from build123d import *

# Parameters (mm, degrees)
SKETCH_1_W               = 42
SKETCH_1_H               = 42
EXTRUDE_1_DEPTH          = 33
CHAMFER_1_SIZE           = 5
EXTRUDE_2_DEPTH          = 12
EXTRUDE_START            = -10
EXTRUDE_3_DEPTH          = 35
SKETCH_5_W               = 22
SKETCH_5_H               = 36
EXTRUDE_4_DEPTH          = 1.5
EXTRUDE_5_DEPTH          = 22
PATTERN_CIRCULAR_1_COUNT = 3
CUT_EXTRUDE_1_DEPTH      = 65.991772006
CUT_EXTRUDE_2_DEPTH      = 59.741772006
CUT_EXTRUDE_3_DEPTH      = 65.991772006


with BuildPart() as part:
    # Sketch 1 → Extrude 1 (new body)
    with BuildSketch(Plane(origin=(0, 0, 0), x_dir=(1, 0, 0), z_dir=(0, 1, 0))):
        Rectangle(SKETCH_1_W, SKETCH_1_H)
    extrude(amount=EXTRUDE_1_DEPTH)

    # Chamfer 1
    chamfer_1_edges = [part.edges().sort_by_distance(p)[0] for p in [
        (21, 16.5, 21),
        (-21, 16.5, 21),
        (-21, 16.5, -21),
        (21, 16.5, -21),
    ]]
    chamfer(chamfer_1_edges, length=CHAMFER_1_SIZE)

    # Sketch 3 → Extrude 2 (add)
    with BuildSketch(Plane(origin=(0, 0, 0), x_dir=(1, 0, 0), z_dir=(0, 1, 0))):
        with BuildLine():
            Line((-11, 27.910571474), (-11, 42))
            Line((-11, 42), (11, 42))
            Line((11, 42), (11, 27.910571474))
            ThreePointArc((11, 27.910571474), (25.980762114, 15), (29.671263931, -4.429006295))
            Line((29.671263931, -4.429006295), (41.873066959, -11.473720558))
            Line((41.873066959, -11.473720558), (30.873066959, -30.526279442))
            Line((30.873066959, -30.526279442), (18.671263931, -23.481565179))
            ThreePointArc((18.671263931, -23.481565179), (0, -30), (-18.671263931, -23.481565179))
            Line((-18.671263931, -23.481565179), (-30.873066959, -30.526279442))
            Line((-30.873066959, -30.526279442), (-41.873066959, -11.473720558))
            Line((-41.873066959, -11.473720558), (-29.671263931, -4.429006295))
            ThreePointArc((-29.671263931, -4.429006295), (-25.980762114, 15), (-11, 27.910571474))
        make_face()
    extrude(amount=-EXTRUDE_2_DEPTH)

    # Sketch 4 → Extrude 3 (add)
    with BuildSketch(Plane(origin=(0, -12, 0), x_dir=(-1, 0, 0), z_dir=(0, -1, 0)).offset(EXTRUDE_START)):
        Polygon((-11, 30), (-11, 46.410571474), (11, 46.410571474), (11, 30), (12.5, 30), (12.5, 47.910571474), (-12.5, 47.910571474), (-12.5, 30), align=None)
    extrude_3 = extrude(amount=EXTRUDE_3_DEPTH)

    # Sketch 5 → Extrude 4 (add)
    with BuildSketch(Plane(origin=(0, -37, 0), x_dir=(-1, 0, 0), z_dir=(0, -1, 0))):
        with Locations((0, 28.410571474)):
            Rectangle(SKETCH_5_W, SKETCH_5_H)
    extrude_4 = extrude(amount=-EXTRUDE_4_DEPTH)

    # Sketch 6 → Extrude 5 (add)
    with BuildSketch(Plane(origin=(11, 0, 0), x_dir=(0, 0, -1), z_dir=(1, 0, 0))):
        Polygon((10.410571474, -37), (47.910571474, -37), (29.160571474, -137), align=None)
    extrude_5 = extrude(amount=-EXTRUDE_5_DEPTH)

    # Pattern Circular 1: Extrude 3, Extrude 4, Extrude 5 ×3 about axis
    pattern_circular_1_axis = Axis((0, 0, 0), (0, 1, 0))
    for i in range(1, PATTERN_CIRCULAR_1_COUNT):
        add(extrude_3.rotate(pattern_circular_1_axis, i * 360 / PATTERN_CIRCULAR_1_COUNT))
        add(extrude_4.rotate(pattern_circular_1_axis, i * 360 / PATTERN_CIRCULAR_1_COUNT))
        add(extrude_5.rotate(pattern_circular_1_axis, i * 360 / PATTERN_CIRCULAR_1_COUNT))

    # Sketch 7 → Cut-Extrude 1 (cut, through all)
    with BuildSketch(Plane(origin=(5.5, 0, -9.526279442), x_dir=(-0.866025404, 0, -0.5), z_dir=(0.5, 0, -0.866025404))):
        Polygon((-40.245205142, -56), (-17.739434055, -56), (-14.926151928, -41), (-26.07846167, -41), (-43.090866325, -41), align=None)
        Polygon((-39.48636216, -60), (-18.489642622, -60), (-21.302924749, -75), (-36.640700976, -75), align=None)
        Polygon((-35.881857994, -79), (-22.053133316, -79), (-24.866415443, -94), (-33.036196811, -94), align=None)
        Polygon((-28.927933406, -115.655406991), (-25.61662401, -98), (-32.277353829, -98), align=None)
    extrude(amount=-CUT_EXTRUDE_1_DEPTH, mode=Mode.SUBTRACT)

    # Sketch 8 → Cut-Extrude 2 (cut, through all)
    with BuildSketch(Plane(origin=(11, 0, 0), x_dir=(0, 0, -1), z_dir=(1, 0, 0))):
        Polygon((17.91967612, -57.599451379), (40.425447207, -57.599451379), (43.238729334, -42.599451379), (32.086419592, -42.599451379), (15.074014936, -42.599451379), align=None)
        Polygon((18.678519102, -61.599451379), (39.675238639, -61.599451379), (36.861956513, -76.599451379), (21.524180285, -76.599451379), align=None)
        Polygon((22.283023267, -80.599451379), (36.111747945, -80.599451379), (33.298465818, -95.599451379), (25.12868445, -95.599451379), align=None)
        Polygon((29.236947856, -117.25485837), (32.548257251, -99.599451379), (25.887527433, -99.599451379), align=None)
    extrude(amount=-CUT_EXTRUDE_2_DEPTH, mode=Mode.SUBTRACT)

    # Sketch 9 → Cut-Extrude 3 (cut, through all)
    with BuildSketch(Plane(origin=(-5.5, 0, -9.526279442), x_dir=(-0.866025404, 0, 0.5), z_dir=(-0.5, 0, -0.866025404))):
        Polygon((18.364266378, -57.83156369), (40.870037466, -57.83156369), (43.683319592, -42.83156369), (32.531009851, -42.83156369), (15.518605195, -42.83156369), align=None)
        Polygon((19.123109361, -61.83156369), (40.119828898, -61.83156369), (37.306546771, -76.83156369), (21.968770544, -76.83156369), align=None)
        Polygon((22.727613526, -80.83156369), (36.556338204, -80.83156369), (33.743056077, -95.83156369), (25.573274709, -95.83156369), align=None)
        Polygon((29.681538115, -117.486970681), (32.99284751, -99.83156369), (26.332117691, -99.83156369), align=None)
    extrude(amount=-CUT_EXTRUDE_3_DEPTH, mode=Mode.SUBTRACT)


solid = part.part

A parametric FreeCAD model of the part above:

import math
import FreeCAD as App
import Part
import Sketcher
from FreeCAD import Vector
Q = App.Units.Quantity


def edges_at(feature, points):
    """Names of the edges that pass closest to the given points."""
    edges = feature.Shape.Edges
    near = lambda p: min(range(len(edges)), key=lambda i: edges[i].distToShape(Part.Vertex(*p))[0])
    return sorted({f"Edge{near(p) + 1}" for p in points})

doc = App.newDocument("Part")
params = doc.addObject("Spreadsheet::Sheet", "Params")
for row, (alias, value) in enumerate([
    ("sketch1_width", "42 mm"),
    ("pad1_length", "33 mm"),
    ("chamfer_size", "5 mm"),
    ("sketch2_radius", "30 mm"),
    ("sketch2_width", "22 mm"),
    ("sketch2_length", "22 mm"),
    ("pad2_length", "12 mm"),
    ("sketch3_width", "22 mm"),
    ("sketch3_width2", "25 mm"),
    ("pad3_length", "35 mm"),
    ("sketch4_width", "22 mm"),
    ("sketch4_height", "36 mm"),
    ("pad4_length", "1.5 mm"),
    ("sketch5_height", "37.5 mm"),
    ("pad5_length", "22 mm"),
], start=1):
    params.set(f"A{row}", alias)
    params.set(f"B{row}", "=" + value)
    params.setAlias(f"B{row}", alias)

body = doc.addObject("PartDesign::Body", "Body")

# Sketch on XZ plane
sketch1 = doc.addObject("Sketcher::SketchObject", "Sketch")
body.addObject(sketch1)
sketch1.AttachmentSupport = (doc.XZ_Plane, [""])
sketch1.MapMode = "FlatFace"
sketch1.addGeometry([
    Part.LineSegment(Vector(-21, -21, 0), Vector(-21, 21, 0)),
    Part.LineSegment(Vector(-21, 21, 0), Vector(21, 21, 0)),
    Part.LineSegment(Vector(21, 21, 0), Vector(21, -21, 0)),
    Part.LineSegment(Vector(21, -21, 0), Vector(-21, -21, 0)),
], False)
sketch1.addConstraint([
    Sketcher.Constraint("Coincident", 0, 2, 1, 1),
    Sketcher.Constraint("Coincident", 1, 2, 2, 1),
    Sketcher.Constraint("Coincident", 2, 2, 3, 1),
    Sketcher.Constraint("Coincident", 3, 2, 0, 1),
    Sketcher.Constraint("Vertical", 0),
    Sketcher.Constraint("Horizontal", 1),
    Sketcher.Constraint("Vertical", 2),
    Sketcher.Constraint("Horizontal", 3),
    Sketcher.Constraint("Symmetric", 0, 2, 2, 2, -1, 1),
    Sketcher.Constraint("Equal", 3, 0),
    Sketcher.Constraint("DistanceX", 1, 1, 1, 2, 42.0),
])
sketch1.setExpression("Constraints[10]", "Params.sketch1_width")
pad1 = doc.addObject("PartDesign::Pad", "Pad")
body.addObject(pad1)
pad1.Profile = sketch1
pad1.setExpression("Length", "Params.pad1_length")
pad1.Reversed = True
doc.recompute()

chamfer = doc.addObject("PartDesign::Chamfer", "Chamfer")
body.addObject(chamfer)
chamfer.Base = (pad1, edges_at(pad1, [
    (21, 16.5, 21),
    (-21, 16.5, 21),
    (-21, 16.5, -21),
    (21, 16.5, -21),
]))
chamfer.setExpression("Size", "Params.chamfer_size")

# Sketch on XZ plane
sketch2 = doc.addObject("Sketcher::SketchObject", "Sketch001")
body.addObject(sketch2)
sketch2.AttachmentSupport = (doc.XZ_Plane, [""])
sketch2.MapMode = "FlatFace"
sketch2.addGeometry([
    Part.LineSegment(Vector(-11, -42, 0), Vector(-11, -28, 0)),  # 0
    Part.ArcOfCircle(Part.Circle(Vector(0, 0, 0), Vector(0, 0, 1), 30), math.radians(172), math.radians(248)),  # 1
    Part.LineSegment(Vector(-30, 4, 0), Vector(-42, 11, 0)),  # 2
    Part.LineSegment(Vector(-42, 11, 0), Vector(-31, 31, 0)),  # 3
    Part.LineSegment(Vector(-31, 31, 0), Vector(-19, 23, 0)),  # 4
    Part.ArcOfCircle(Part.Circle(Vector(0, 0, 0), Vector(0, 0, 1), 30), math.radians(52), math.radians(128)),  # 5
    Part.LineSegment(Vector(19, 23, 0), Vector(31, 31, 0)),  # 6
    Part.LineSegment(Vector(31, 31, 0), Vector(42, 11, 0)),  # 7
    Part.LineSegment(Vector(42, 11, 0), Vector(30, 4, 0)),  # 8
    Part.ArcOfCircle(Part.Circle(Vector(0, 0, 0), Vector(0, 0, 1), 30), math.radians(-68), math.radians(8)),  # 9
    Part.LineSegment(Vector(11, -28, 0), Vector(11, -42, 0)),  # 10
    Part.LineSegment(Vector(11, -42, 0), Vector(-11, -42, 0)),  # 11
], False)
sketch2.addConstraint([
    Sketcher.Constraint("Coincident", 0, 2, 1, 2),
    Sketcher.Constraint("Coincident", 1, 1, 2, 1),
    Sketcher.Constraint("Coincident", 2, 2, 3, 1),
    Sketcher.Constraint("Coincident", 3, 2, 4, 1),
    Sketcher.Constraint("Coincident", 4, 2, 5, 2),
    Sketcher.Constraint("Coincident", 5, 1, 6, 1),
    Sketcher.Constraint("Coincident", 6, 2, 7, 1),
    Sketcher.Constraint("Coincident", 7, 2, 8, 1),
    Sketcher.Constraint("Coincident", 8, 2, 9, 2),
    Sketcher.Constraint("Coincident", 9, 1, 10, 1),
    Sketcher.Constraint("Coincident", 10, 2, 11, 1),
    Sketcher.Constraint("Coincident", 11, 2, 0, 1),
    Sketcher.Constraint("Vertical", 0),
    Sketcher.Constraint("Vertical", 10),
    Sketcher.Constraint("Horizontal", 11),
    Sketcher.Constraint("Coincident", 1, 3, -1, 1),
    Sketcher.Constraint("Coincident", 5, 3, -1, 1),
    Sketcher.Constraint("Coincident", 9, 3, -1, 1),
    Sketcher.Constraint("Equal", 1, 5),
    Sketcher.Constraint("Equal", 5, 9),
    Sketcher.Constraint("Symmetric", 3, 2, 6, 2, -2),
    Sketcher.Constraint("Symmetric", 2, 2, 7, 2, -2),
    Sketcher.Constraint("Perpendicular", 2, 3),
    Sketcher.Constraint("Perpendicular", 3, 4),
    Sketcher.Constraint("Perpendicular", 6, 7),
    Sketcher.Constraint("Perpendicular", 7, 8),
    Sketcher.Constraint("Horizontal", 0, 2, 9, 1),
    Sketcher.Constraint("Equal", 2, 4),
    Sketcher.Constraint("Radius", 1, 30.0),
    Sketcher.Constraint("DistanceX", 11, 2, 11, 1, 22.0),
    Sketcher.Constraint("Angle", 2, Q("150 deg")),
    Sketcher.Constraint("Distance", 3, 22.0),
    Sketcher.Constraint("DistanceY", 10, 2, -1, 1, 42.0),
    Sketcher.Constraint("Distance", 2, 14.089429),
])
sketch2.setExpression("Constraints[28]", "Params.sketch2_radius")
sketch2.setExpression("Constraints[29]", "Params.sketch2_width")
sketch2.setExpression("Constraints[31]", "Params.sketch2_length")
pad2 = doc.addObject("PartDesign::Pad", "Pad001")
body.addObject(pad2)
pad2.Profile = sketch2
pad2.setExpression("Length", "Params.pad2_length")

# Sketch on XZ plane
sketch3 = doc.addObject("Sketcher::SketchObject", "Sketch002")
body.addObject(sketch3)
sketch3.AttachmentSupport = (doc.XZ_Plane, [""])
sketch3.MapMode = "FlatFace"
sketch3.AttachmentOffset = App.Placement(Vector(0, 0, 2), App.Rotation())
sketch3.addGeometry([
    Part.LineSegment(Vector(11, -30, 0), Vector(11, -46.4, 0)),  # 0
    Part.LineSegment(Vector(11, -46.4, 0), Vector(-11, -46.4, 0)),  # 1
    Part.LineSegment(Vector(-11, -46.4, 0), Vector(-11, -30, 0)),  # 2
    Part.LineSegment(Vector(-11, -30, 0), Vector(-12.5, -30, 0)),  # 3
    Part.LineSegment(Vector(-12.5, -30, 0), Vector(-12.5, -47.9, 0)),  # 4
    Part.LineSegment(Vector(-12.5, -47.9, 0), Vector(12.5, -47.9, 0)),  # 5
    Part.LineSegment(Vector(12.5, -47.9, 0), Vector(12.5, -30, 0)),  # 6
    Part.LineSegment(Vector(12.5, -30, 0), Vector(11, -30, 0)),  # 7
], False)
sketch3.addConstraint([
    Sketcher.Constraint("Coincident", 0, 2, 1, 1),
    Sketcher.Constraint("Coincident", 1, 2, 2, 1),
    Sketcher.Constraint("Coincident", 2, 2, 3, 1),
    Sketcher.Constraint("Coincident", 3, 2, 4, 1),
    Sketcher.Constraint("Coincident", 4, 2, 5, 1),
    Sketcher.Constraint("Coincident", 5, 2, 6, 1),
    Sketcher.Constraint("Coincident", 6, 2, 7, 1),
    Sketcher.Constraint("Coincident", 7, 2, 0, 1),
    Sketcher.Constraint("Vertical", 0),
    Sketcher.Constraint("Horizontal", 1),
    Sketcher.Constraint("Vertical", 2),
    Sketcher.Constraint("Horizontal", 3),
    Sketcher.Constraint("Vertical", 4),
    Sketcher.Constraint("Horizontal", 5),
    Sketcher.Constraint("Vertical", 6),
    Sketcher.Constraint("Horizontal", 7),
    Sketcher.Constraint("Symmetric", 3, 2, 6, 2, -2),
    Sketcher.Constraint("Equal", 3, 7),
    Sketcher.Constraint("DistanceX", 1, 2, 1, 1, 22.0),
    Sketcher.Constraint("DistanceX", 5, 1, 5, 2, 25.0),
    Sketcher.Constraint("DistanceY", 2, 2, -1, 1, 30.0),
    Sketcher.Constraint("DistanceY", 4, 2, 1, 2, 1.5),
    Sketcher.Constraint("DistanceY", 0, 2, 0, 1, 16.410571),
])
sketch3.setExpression("Constraints[18]", "Params.sketch3_width")
sketch3.setExpression("Constraints[19]", "Params.sketch3_width2")
pad3 = doc.addObject("PartDesign::Pad", "Pad002")
body.addObject(pad3)
pad3.Profile = sketch3
pad3.setExpression("Length", "Params.pad3_length")

# Sketch on XZ plane
sketch4 = doc.addObject("Sketcher::SketchObject", "Sketch003")
body.addObject(sketch4)
sketch4.AttachmentSupport = (doc.XZ_Plane, [""])
sketch4.MapMode = "FlatFace"
sketch4.AttachmentOffset = App.Placement(Vector(0, 0, 37), App.Rotation())
sketch4.addGeometry([
    Part.LineSegment(Vector(11, -46, 0), Vector(11, -10, 0)),
    Part.LineSegment(Vector(11, -10, 0), Vector(-11, -10, 0)),
    Part.LineSegment(Vector(-11, -10, 0), Vector(-11, -46, 0)),
    Part.LineSegment(Vector(-11, -46, 0), Vector(11, -46, 0)),
], False)
sketch4.addConstraint([
    Sketcher.Constraint("Coincident", 0, 2, 1, 1),
    Sketcher.Constraint("Coincident", 1, 2, 2, 1),
    Sketcher.Constraint("Coincident", 2, 2, 3, 1),
    Sketcher.Constraint("Coincident", 3, 2, 0, 1),
    Sketcher.Constraint("Vertical", 0),
    Sketcher.Constraint("Horizontal", 1),
    Sketcher.Constraint("Vertical", 2),
    Sketcher.Constraint("Horizontal", 3),
    Sketcher.Constraint("DistanceX", 1, 2, 1, 1, 22.0),
    Sketcher.Constraint("DistanceY", 0, 1, 0, 2, 36.0),
    Sketcher.Constraint("DistanceX", -1, 1, 0, 2, 11.0),
    Sketcher.Constraint("DistanceY", 0, 2, -1, 1, 10.410571),
])
sketch4.setExpression("Constraints[8]", "Params.sketch4_width")
sketch4.setExpression("Constraints[9]", "Params.sketch4_height")
pad4 = doc.addObject("PartDesign::Pad", "Pad003")
body.addObject(pad4)
pad4.Profile = sketch4
pad4.setExpression("Length", "Params.pad4_length")
pad4.Reversed = True

# Sketch on YZ plane
sketch5 = doc.addObject("Sketcher::SketchObject", "Sketch004")
body.addObject(sketch5)
sketch5.AttachmentSupport = (doc.YZ_Plane, [""])
sketch5.MapMode = "FlatFace"
sketch5.AttachmentOffset = App.Placement(Vector(0, 0, 11), App.Rotation())
sketch5.addGeometry([
    Part.LineSegment(Vector(-37, -48, 0), Vector(-37, -10, 0)),
    Part.LineSegment(Vector(-37, -10, 0), Vector(-137, -29, 0)),
    Part.LineSegment(Vector(-137, -29, 0), Vector(-37, -48, 0)),
], False)
sketch5.addConstraint([
    Sketcher.Constraint("Coincident", 0, 2, 1, 1),
    Sketcher.Constraint("Coincident", 1, 2, 2, 1),
    Sketcher.Constraint("Coincident", 2, 2, 0, 1),
    Sketcher.Constraint("Vertical", 0),
    Sketcher.Constraint("Equal", 1, 2),
    Sketcher.Constraint("DistanceY", 0, 1, 0, 2, 37.5),
    Sketcher.Constraint("DistanceX", 0, 2, -1, 1, 37.0),
    Sketcher.Constraint("DistanceX", 1, 2, -1, 1, 137.0),
    Sketcher.Constraint("DistanceY", 0, 2, -1, 1, 10.410571),
])
sketch5.setExpression("Constraints[5]", "Params.sketch5_height")
pad5 = doc.addObject("PartDesign::Pad", "Pad004")
body.addObject(pad5)
pad5.Profile = sketch5
pad5.setExpression("Length", "Params.pad5_length")
pad5.Reversed = True
doc.recompute()

polarpattern = doc.addObject("PartDesign::PolarPattern", "PolarPattern")
body.addObject(polarpattern)
polarpattern.Originals = [pad3, pad4, pad5]
polarpattern.Axis = (doc.Y_Axis, [""])
polarpattern.Angle = 360
polarpattern.Occurrences = 3
body.Tip = polarpattern

# Sketch on an angled plane
sketch6 = doc.addObject("Sketcher::SketchObject", "Sketch005")
body.addObject(sketch6)
sketch6.Placement = App.Placement(Vector(5.5, 0, -9.526279), App.Rotation(Vector(-0.866025404, 0, -0.5), Vector(0, 1, 0), Vector(0.5, 0, -0.866025404), "ZXY"))
sketch6.addGeometry([
    Part.LineSegment(Vector(-40, -56, 0), Vector(-18, -56, 0)),  # 0
    Part.LineSegment(Vector(-18, -56, 0), Vector(-15, -41, 0)),  # 1
    Part.LineSegment(Vector(-15, -41, 0), Vector(-43, -41, 0)),  # 2
    Part.LineSegment(Vector(-43, -41, 0), Vector(-40, -56, 0)),  # 3
    Part.LineSegment(Vector(-18, -60, 0), Vector(-39, -60, 0)),  # 4
    Part.LineSegment(Vector(-39, -60, 0), Vector(-37, -75, 0)),  # 5
    Part.LineSegment(Vector(-37, -75, 0), Vector(-21, -75, 0)),  # 6
    Part.LineSegment(Vector(-21, -75, 0), Vector(-18, -60, 0)),  # 7
    Part.LineSegment(Vector(-22, -79, 0), Vector(-36, -79, 0)),  # 8
    Part.LineSegment(Vector(-36, -79, 0), Vector(-33, -94, 0)),  # 9
    Part.LineSegment(Vector(-33, -94, 0), Vector(-25, -94, 0)),  # 10
    Part.LineSegment(Vector(-25, -94, 0), Vector(-22, -79, 0)),  # 11
    Part.LineSegment(Vector(-29, -116, 0), Vector(-26, -98, 0)),  # 12
    Part.LineSegment(Vector(-26, -98, 0), Vector(-32, -98, 0)),  # 13
    Part.LineSegment(Vector(-32, -98, 0), Vector(-29, -116, 0)),  # 14
], False)
sketch6.addConstraint([
    Sketcher.Constraint("Coincident", 0, 2, 1, 1),
    Sketcher.Constraint("Coincident", 1, 2, 2, 1),
    Sketcher.Constraint("Coincident", 2, 2, 3, 1),
    Sketcher.Constraint("Coincident", 3, 2, 0, 1),
    Sketcher.Constraint("Coincident", 4, 2, 5, 1),
    Sketcher.Constraint("Coincident", 5, 2, 6, 1),
    Sketcher.Constraint("Coincident", 6, 2, 7, 1),
    Sketcher.Constraint("Coincident", 7, 2, 4, 1),
    Sketcher.Constraint("Coincident", 8, 2, 9, 1),
    Sketcher.Constraint("Coincident", 9, 2, 10, 1),
    Sketcher.Constraint("Coincident", 10, 2, 11, 1),
    Sketcher.Constraint("Coincident", 11, 2, 8, 1),
    Sketcher.Constraint("Coincident", 12, 2, 13, 1),
    Sketcher.Constraint("Coincident", 13, 2, 14, 1),
    Sketcher.Constraint("Coincident", 14, 2, 12, 1),
    Sketcher.Constraint("Horizontal", 0),
    Sketcher.Constraint("Horizontal", 2),
    Sketcher.Constraint("Horizontal", 4),
    Sketcher.Constraint("Horizontal", 6),
    Sketcher.Constraint("Horizontal", 8),
    Sketcher.Constraint("Horizontal", 10),
    Sketcher.Constraint("Horizontal", 13),
    Sketcher.Constraint("Parallel", 3, 5),
    Sketcher.Constraint("Parallel", 1, 7),
    Sketcher.Constraint("Parallel", 5, 9),
    Sketcher.Constraint("Parallel", 7, 11),
    Sketcher.Constraint("Parallel", 11, 12),
    Sketcher.Constraint("Parallel", 9, 14),
    Sketcher.Constraint("Equal", 3, 5),
    Sketcher.Constraint("Equal", 5, 9),
    Sketcher.Constraint("DistanceY", 0, 2, -1, 1, 56.0),
    Sketcher.Constraint("DistanceY", 1, 2, -1, 1, 41.0),
    Sketcher.Constraint("DistanceY", 4, 2, -1, 1, 60.0),
    Sketcher.Constraint("DistanceY", 8, 2, -1, 1, 79.0),
    Sketcher.Constraint("DistanceY", 12, 2, -1, 1, 98.0),
    Sketcher.Constraint("DistanceX", 0, 1, 0, 2, 22.505771),
    Sketcher.Constraint("DistanceX", 4, 2, 4, 1, 20.99672),
    Sketcher.Constraint("DistanceX", 10, 1, 10, 2, 8.169781),
    Sketcher.Constraint("DistanceX", 13, 2, 13, 1, 6.66073),
    Sketcher.Constraint("DistanceX", 5, 2, -1, 1, 36.640701),
    Sketcher.Constraint("DistanceX", 12, 2, 6, 2, 4.313699),
    Sketcher.Constraint("DistanceX", 14, 2, 11, 2, 6.8748),
    Sketcher.Constraint("Distance", 1, 15.261538),
    Sketcher.Constraint("Distance", 3, 15.26754),
    Sketcher.Constraint("DistanceX", 1, 2, -1, 1, 14.926152),
])
pocket1 = doc.addObject("PartDesign::Pocket", "Pocket")
body.addObject(pocket1)
pocket1.Profile = sketch6
pocket1.Type = "ThroughAll"

# Sketch on YZ plane
sketch7 = doc.addObject("Sketcher::SketchObject", "Sketch006")
body.addObject(sketch7)
sketch7.AttachmentSupport = (doc.YZ_Plane, [""])
sketch7.MapMode = "FlatFace"
sketch7.AttachmentOffset = App.Placement(Vector(0, 0, 11), App.Rotation())
sketch7.addGeometry([
    Part.LineSegment(Vector(-58, -18, 0), Vector(-58, -40, 0)),  # 0
    Part.LineSegment(Vector(-58, -40, 0), Vector(-43, -43, 0)),  # 1
    Part.LineSegment(Vector(-43, -43, 0), Vector(-43, -15, 0)),  # 2
    Part.LineSegment(Vector(-43, -15, 0), Vector(-58, -18, 0)),  # 3
    Part.LineSegment(Vector(-62, -40, 0), Vector(-62, -19, 0)),  # 4
    Part.LineSegment(Vector(-62, -19, 0), Vector(-77, -22, 0)),  # 5
    Part.LineSegment(Vector(-77, -22, 0), Vector(-77, -37, 0)),  # 6
    Part.LineSegment(Vector(-77, -37, 0), Vector(-62, -40, 0)),  # 7
    Part.LineSegment(Vector(-81, -36, 0), Vector(-81, -22, 0)),  # 8
    Part.LineSegment(Vector(-81, -22, 0), Vector(-96, -25, 0)),  # 9
    Part.LineSegment(Vector(-96, -25, 0), Vector(-96, -33, 0)),  # 10
    Part.LineSegment(Vector(-96, -33, 0), Vector(-81, -36, 0)),  # 11
    Part.LineSegment(Vector(-117, -29, 0), Vector(-100, -33, 0)),  # 12
    Part.LineSegment(Vector(-100, -33, 0), Vector(-100, -26, 0)),  # 13
    Part.LineSegment(Vector(-100, -26, 0), Vector(-117, -29, 0)),  # 14
], False)
sketch7.addConstraint([
    Sketcher.Constraint("Coincident", 0, 2, 1, 1),
    Sketcher.Constraint("Coincident", 1, 2, 2, 1),
    Sketcher.Constraint("Coincident", 2, 2, 3, 1),
    Sketcher.Constraint("Coincident", 3, 2, 0, 1),
    Sketcher.Constraint("Coincident", 4, 2, 5, 1),
    Sketcher.Constraint("Coincident", 5, 2, 6, 1),
    Sketcher.Constraint("Coincident", 6, 2, 7, 1),
    Sketcher.Constraint("Coincident", 7, 2, 4, 1),
    Sketcher.Constraint("Coincident", 8, 2, 9, 1),
    Sketcher.Constraint("Coincident", 9, 2, 10, 1),
    Sketcher.Constraint("Coincident", 10, 2, 11, 1),
    Sketcher.Constraint("Coincident", 11, 2, 8, 1),
    Sketcher.Constraint("Coincident", 12, 2, 13, 1),
    Sketcher.Constraint("Coincident", 13, 2, 14, 1),
    Sketcher.Constraint("Coincident", 14, 2, 12, 1),
    Sketcher.Constraint("Vertical", 0),
    Sketcher.Constraint("Vertical", 2),
    Sketcher.Constraint("Vertical", 4),
    Sketcher.Constraint("Vertical", 6),
    Sketcher.Constraint("Vertical", 8),
    Sketcher.Constraint("Vertical", 10),
    Sketcher.Constraint("Vertical", 13),
    Sketcher.Constraint("Parallel", 3, 5),
    Sketcher.Constraint("Parallel", 1, 7),
    Sketcher.Constraint("Parallel", 5, 9),
    Sketcher.Constraint("Parallel", 7, 11),
    Sketcher.Constraint("Parallel", 11, 12),
    Sketcher.Constraint("Parallel", 9, 14),
    Sketcher.Constraint("Equal", 3, 5),
    Sketcher.Constraint("Equal", 5, 9),
    Sketcher.Constraint("DistanceX", 0, 2, 1, 2, 15.0),
    Sketcher.Constraint("DistanceX", 4, 2, 3, 2, 4.0),
    Sketcher.Constraint("DistanceX", 8, 2, 5, 2, 4.0),
    Sketcher.Constraint("DistanceX", 12, 2, 10, 2, 4.0),
    Sketcher.Constraint("DistanceY", 0, 2, 0, 1, 22.505771),
    Sketcher.Constraint("DistanceY", 4, 1, 4, 2, 20.99672),
    Sketcher.Constraint("DistanceY", 10, 2, 10, 1, 8.169781),
    Sketcher.Constraint("DistanceY", 13, 1, 13, 2, 6.66073),
    Sketcher.Constraint("DistanceY", 6, 2, 12, 2, 4.313699),
    Sketcher.Constraint("DistanceY", 11, 2, 14, 2, 6.8748),
    Sketcher.Constraint("Distance", 1, 15.261538),
    Sketcher.Constraint("Distance", 3, 15.26754),
    Sketcher.Constraint("DistanceX", 0, 2, -1, 1, 57.599451),
    Sketcher.Constraint("DistanceY", 1, 2, -1, 1, 43.238729),
    Sketcher.Constraint("DistanceY", 4, 2, -1, 1, 18.678519),
])
pocket2 = doc.addObject("PartDesign::Pocket", "Pocket001")
body.addObject(pocket2)
pocket2.Profile = sketch7
pocket2.Type = "ThroughAll"

# Sketch on an angled plane
sketch8 = doc.addObject("Sketcher::SketchObject", "Sketch007")
body.addObject(sketch8)
sketch8.Placement = App.Placement(Vector(-5.5, 0, -9.526279), App.Rotation(Vector(-0.866025404, 0, 0.5), Vector(0, 1, 0), Vector(-0.5, 0, -0.866025404), "ZXY"))
sketch8.addGeometry([
    Part.LineSegment(Vector(18, -58, 0), Vector(41, -58, 0)),  # 0
    Part.LineSegment(Vector(41, -58, 0), Vector(44, -43, 0)),  # 1
    Part.LineSegment(Vector(44, -43, 0), Vector(16, -43, 0)),  # 2
    Part.LineSegment(Vector(16, -43, 0), Vector(18, -58, 0)),  # 3
    Part.LineSegment(Vector(40, -62, 0), Vector(19, -62, 0)),  # 4
    Part.LineSegment(Vector(19, -62, 0), Vector(22, -77, 0)),  # 5
    Part.LineSegment(Vector(22, -77, 0), Vector(37, -77, 0)),  # 6
    Part.LineSegment(Vector(37, -77, 0), Vector(40, -62, 0)),  # 7
    Part.LineSegment(Vector(37, -81, 0), Vector(23, -81, 0)),  # 8
    Part.LineSegment(Vector(23, -81, 0), Vector(26, -96, 0)),  # 9
    Part.LineSegment(Vector(26, -96, 0), Vector(34, -96, 0)),  # 10
    Part.LineSegment(Vector(34, -96, 0), Vector(37, -81, 0)),  # 11
    Part.LineSegment(Vector(30, -117, 0), Vector(33, -100, 0)),  # 12
    Part.LineSegment(Vector(33, -100, 0), Vector(26, -100, 0)),  # 13
    Part.LineSegment(Vector(26, -100, 0), Vector(30, -117, 0)),  # 14
], False)
sketch8.addConstraint([
    Sketcher.Constraint("Coincident", 0, 2, 1, 1),
    Sketcher.Constraint("Coincident", 1, 2, 2, 1),
    Sketcher.Constraint("Coincident", 2, 2, 3, 1),
    Sketcher.Constraint("Coincident", 3, 2, 0, 1),
    Sketcher.Constraint("Coincident", 4, 2, 5, 1),
    Sketcher.Constraint("Coincident", 5, 2, 6, 1),
    Sketcher.Constraint("Coincident", 6, 2, 7, 1),
    Sketcher.Constraint("Coincident", 7, 2, 4, 1),
    Sketcher.Constraint("Coincident", 8, 2, 9, 1),
    Sketcher.Constraint("Coincident", 9, 2, 10, 1),
    Sketcher.Constraint("Coincident", 10, 2, 11, 1),
    Sketcher.Constraint("Coincident", 11, 2, 8, 1),
    Sketcher.Constraint("Coincident", 12, 2, 13, 1),
    Sketcher.Constraint("Coincident", 13, 2, 14, 1),
    Sketcher.Constraint("Coincident", 14, 2, 12, 1),
    Sketcher.Constraint("Horizontal", 0),
    Sketcher.Constraint("Horizontal", 2),
    Sketcher.Constraint("Horizontal", 4),
    Sketcher.Constraint("Horizontal", 6),
    Sketcher.Constraint("Horizontal", 8),
    Sketcher.Constraint("Horizontal", 10),
    Sketcher.Constraint("Horizontal", 13),
    Sketcher.Constraint("Parallel", 3, 5),
    Sketcher.Constraint("Parallel", 1, 7),
    Sketcher.Constraint("Parallel", 5, 9),
    Sketcher.Constraint("Parallel", 7, 11),
    Sketcher.Constraint("Parallel", 11, 12),
    Sketcher.Constraint("Parallel", 9, 14),
    Sketcher.Constraint("Equal", 3, 5),
    Sketcher.Constraint("Equal", 5, 9),
    Sketcher.Constraint("DistanceY", 0, 2, 1, 2, 15.0),
    Sketcher.Constraint("DistanceY", 4, 2, 3, 2, 4.0),
    Sketcher.Constraint("DistanceY", 8, 2, 5, 2, 4.0),
    Sketcher.Constraint("DistanceY", 12, 2, 10, 2, 4.0),
    Sketcher.Constraint("DistanceX", 0, 1, 0, 2, 22.505771),
    Sketcher.Constraint("DistanceX", 4, 2, 4, 1, 20.99672),
    Sketcher.Constraint("DistanceX", 10, 1, 10, 2, 8.169781),
    Sketcher.Constraint("DistanceX", 13, 2, 13, 1, 6.66073),
    Sketcher.Constraint("DistanceX", 12, 2, 6, 2, 4.313699),
    Sketcher.Constraint("DistanceX", 14, 2, 11, 2, 6.8748),
    Sketcher.Constraint("Distance", 1, 15.261538),
    Sketcher.Constraint("Distance", 3, 15.26754),
    Sketcher.Constraint("DistanceX", -1, 1, 1, 2, 43.68332),
    Sketcher.Constraint("DistanceX", -1, 1, 4, 2, 19.123109),
    Sketcher.Constraint("DistanceY", 14, 2, -1, 1, 117.486971),
])
pocket3 = doc.addObject("PartDesign::Pocket", "Pocket002")
body.addObject(pocket3)
pocket3.Profile = sketch8
pocket3.Type = "ThroughAll"

doc.recompute()
